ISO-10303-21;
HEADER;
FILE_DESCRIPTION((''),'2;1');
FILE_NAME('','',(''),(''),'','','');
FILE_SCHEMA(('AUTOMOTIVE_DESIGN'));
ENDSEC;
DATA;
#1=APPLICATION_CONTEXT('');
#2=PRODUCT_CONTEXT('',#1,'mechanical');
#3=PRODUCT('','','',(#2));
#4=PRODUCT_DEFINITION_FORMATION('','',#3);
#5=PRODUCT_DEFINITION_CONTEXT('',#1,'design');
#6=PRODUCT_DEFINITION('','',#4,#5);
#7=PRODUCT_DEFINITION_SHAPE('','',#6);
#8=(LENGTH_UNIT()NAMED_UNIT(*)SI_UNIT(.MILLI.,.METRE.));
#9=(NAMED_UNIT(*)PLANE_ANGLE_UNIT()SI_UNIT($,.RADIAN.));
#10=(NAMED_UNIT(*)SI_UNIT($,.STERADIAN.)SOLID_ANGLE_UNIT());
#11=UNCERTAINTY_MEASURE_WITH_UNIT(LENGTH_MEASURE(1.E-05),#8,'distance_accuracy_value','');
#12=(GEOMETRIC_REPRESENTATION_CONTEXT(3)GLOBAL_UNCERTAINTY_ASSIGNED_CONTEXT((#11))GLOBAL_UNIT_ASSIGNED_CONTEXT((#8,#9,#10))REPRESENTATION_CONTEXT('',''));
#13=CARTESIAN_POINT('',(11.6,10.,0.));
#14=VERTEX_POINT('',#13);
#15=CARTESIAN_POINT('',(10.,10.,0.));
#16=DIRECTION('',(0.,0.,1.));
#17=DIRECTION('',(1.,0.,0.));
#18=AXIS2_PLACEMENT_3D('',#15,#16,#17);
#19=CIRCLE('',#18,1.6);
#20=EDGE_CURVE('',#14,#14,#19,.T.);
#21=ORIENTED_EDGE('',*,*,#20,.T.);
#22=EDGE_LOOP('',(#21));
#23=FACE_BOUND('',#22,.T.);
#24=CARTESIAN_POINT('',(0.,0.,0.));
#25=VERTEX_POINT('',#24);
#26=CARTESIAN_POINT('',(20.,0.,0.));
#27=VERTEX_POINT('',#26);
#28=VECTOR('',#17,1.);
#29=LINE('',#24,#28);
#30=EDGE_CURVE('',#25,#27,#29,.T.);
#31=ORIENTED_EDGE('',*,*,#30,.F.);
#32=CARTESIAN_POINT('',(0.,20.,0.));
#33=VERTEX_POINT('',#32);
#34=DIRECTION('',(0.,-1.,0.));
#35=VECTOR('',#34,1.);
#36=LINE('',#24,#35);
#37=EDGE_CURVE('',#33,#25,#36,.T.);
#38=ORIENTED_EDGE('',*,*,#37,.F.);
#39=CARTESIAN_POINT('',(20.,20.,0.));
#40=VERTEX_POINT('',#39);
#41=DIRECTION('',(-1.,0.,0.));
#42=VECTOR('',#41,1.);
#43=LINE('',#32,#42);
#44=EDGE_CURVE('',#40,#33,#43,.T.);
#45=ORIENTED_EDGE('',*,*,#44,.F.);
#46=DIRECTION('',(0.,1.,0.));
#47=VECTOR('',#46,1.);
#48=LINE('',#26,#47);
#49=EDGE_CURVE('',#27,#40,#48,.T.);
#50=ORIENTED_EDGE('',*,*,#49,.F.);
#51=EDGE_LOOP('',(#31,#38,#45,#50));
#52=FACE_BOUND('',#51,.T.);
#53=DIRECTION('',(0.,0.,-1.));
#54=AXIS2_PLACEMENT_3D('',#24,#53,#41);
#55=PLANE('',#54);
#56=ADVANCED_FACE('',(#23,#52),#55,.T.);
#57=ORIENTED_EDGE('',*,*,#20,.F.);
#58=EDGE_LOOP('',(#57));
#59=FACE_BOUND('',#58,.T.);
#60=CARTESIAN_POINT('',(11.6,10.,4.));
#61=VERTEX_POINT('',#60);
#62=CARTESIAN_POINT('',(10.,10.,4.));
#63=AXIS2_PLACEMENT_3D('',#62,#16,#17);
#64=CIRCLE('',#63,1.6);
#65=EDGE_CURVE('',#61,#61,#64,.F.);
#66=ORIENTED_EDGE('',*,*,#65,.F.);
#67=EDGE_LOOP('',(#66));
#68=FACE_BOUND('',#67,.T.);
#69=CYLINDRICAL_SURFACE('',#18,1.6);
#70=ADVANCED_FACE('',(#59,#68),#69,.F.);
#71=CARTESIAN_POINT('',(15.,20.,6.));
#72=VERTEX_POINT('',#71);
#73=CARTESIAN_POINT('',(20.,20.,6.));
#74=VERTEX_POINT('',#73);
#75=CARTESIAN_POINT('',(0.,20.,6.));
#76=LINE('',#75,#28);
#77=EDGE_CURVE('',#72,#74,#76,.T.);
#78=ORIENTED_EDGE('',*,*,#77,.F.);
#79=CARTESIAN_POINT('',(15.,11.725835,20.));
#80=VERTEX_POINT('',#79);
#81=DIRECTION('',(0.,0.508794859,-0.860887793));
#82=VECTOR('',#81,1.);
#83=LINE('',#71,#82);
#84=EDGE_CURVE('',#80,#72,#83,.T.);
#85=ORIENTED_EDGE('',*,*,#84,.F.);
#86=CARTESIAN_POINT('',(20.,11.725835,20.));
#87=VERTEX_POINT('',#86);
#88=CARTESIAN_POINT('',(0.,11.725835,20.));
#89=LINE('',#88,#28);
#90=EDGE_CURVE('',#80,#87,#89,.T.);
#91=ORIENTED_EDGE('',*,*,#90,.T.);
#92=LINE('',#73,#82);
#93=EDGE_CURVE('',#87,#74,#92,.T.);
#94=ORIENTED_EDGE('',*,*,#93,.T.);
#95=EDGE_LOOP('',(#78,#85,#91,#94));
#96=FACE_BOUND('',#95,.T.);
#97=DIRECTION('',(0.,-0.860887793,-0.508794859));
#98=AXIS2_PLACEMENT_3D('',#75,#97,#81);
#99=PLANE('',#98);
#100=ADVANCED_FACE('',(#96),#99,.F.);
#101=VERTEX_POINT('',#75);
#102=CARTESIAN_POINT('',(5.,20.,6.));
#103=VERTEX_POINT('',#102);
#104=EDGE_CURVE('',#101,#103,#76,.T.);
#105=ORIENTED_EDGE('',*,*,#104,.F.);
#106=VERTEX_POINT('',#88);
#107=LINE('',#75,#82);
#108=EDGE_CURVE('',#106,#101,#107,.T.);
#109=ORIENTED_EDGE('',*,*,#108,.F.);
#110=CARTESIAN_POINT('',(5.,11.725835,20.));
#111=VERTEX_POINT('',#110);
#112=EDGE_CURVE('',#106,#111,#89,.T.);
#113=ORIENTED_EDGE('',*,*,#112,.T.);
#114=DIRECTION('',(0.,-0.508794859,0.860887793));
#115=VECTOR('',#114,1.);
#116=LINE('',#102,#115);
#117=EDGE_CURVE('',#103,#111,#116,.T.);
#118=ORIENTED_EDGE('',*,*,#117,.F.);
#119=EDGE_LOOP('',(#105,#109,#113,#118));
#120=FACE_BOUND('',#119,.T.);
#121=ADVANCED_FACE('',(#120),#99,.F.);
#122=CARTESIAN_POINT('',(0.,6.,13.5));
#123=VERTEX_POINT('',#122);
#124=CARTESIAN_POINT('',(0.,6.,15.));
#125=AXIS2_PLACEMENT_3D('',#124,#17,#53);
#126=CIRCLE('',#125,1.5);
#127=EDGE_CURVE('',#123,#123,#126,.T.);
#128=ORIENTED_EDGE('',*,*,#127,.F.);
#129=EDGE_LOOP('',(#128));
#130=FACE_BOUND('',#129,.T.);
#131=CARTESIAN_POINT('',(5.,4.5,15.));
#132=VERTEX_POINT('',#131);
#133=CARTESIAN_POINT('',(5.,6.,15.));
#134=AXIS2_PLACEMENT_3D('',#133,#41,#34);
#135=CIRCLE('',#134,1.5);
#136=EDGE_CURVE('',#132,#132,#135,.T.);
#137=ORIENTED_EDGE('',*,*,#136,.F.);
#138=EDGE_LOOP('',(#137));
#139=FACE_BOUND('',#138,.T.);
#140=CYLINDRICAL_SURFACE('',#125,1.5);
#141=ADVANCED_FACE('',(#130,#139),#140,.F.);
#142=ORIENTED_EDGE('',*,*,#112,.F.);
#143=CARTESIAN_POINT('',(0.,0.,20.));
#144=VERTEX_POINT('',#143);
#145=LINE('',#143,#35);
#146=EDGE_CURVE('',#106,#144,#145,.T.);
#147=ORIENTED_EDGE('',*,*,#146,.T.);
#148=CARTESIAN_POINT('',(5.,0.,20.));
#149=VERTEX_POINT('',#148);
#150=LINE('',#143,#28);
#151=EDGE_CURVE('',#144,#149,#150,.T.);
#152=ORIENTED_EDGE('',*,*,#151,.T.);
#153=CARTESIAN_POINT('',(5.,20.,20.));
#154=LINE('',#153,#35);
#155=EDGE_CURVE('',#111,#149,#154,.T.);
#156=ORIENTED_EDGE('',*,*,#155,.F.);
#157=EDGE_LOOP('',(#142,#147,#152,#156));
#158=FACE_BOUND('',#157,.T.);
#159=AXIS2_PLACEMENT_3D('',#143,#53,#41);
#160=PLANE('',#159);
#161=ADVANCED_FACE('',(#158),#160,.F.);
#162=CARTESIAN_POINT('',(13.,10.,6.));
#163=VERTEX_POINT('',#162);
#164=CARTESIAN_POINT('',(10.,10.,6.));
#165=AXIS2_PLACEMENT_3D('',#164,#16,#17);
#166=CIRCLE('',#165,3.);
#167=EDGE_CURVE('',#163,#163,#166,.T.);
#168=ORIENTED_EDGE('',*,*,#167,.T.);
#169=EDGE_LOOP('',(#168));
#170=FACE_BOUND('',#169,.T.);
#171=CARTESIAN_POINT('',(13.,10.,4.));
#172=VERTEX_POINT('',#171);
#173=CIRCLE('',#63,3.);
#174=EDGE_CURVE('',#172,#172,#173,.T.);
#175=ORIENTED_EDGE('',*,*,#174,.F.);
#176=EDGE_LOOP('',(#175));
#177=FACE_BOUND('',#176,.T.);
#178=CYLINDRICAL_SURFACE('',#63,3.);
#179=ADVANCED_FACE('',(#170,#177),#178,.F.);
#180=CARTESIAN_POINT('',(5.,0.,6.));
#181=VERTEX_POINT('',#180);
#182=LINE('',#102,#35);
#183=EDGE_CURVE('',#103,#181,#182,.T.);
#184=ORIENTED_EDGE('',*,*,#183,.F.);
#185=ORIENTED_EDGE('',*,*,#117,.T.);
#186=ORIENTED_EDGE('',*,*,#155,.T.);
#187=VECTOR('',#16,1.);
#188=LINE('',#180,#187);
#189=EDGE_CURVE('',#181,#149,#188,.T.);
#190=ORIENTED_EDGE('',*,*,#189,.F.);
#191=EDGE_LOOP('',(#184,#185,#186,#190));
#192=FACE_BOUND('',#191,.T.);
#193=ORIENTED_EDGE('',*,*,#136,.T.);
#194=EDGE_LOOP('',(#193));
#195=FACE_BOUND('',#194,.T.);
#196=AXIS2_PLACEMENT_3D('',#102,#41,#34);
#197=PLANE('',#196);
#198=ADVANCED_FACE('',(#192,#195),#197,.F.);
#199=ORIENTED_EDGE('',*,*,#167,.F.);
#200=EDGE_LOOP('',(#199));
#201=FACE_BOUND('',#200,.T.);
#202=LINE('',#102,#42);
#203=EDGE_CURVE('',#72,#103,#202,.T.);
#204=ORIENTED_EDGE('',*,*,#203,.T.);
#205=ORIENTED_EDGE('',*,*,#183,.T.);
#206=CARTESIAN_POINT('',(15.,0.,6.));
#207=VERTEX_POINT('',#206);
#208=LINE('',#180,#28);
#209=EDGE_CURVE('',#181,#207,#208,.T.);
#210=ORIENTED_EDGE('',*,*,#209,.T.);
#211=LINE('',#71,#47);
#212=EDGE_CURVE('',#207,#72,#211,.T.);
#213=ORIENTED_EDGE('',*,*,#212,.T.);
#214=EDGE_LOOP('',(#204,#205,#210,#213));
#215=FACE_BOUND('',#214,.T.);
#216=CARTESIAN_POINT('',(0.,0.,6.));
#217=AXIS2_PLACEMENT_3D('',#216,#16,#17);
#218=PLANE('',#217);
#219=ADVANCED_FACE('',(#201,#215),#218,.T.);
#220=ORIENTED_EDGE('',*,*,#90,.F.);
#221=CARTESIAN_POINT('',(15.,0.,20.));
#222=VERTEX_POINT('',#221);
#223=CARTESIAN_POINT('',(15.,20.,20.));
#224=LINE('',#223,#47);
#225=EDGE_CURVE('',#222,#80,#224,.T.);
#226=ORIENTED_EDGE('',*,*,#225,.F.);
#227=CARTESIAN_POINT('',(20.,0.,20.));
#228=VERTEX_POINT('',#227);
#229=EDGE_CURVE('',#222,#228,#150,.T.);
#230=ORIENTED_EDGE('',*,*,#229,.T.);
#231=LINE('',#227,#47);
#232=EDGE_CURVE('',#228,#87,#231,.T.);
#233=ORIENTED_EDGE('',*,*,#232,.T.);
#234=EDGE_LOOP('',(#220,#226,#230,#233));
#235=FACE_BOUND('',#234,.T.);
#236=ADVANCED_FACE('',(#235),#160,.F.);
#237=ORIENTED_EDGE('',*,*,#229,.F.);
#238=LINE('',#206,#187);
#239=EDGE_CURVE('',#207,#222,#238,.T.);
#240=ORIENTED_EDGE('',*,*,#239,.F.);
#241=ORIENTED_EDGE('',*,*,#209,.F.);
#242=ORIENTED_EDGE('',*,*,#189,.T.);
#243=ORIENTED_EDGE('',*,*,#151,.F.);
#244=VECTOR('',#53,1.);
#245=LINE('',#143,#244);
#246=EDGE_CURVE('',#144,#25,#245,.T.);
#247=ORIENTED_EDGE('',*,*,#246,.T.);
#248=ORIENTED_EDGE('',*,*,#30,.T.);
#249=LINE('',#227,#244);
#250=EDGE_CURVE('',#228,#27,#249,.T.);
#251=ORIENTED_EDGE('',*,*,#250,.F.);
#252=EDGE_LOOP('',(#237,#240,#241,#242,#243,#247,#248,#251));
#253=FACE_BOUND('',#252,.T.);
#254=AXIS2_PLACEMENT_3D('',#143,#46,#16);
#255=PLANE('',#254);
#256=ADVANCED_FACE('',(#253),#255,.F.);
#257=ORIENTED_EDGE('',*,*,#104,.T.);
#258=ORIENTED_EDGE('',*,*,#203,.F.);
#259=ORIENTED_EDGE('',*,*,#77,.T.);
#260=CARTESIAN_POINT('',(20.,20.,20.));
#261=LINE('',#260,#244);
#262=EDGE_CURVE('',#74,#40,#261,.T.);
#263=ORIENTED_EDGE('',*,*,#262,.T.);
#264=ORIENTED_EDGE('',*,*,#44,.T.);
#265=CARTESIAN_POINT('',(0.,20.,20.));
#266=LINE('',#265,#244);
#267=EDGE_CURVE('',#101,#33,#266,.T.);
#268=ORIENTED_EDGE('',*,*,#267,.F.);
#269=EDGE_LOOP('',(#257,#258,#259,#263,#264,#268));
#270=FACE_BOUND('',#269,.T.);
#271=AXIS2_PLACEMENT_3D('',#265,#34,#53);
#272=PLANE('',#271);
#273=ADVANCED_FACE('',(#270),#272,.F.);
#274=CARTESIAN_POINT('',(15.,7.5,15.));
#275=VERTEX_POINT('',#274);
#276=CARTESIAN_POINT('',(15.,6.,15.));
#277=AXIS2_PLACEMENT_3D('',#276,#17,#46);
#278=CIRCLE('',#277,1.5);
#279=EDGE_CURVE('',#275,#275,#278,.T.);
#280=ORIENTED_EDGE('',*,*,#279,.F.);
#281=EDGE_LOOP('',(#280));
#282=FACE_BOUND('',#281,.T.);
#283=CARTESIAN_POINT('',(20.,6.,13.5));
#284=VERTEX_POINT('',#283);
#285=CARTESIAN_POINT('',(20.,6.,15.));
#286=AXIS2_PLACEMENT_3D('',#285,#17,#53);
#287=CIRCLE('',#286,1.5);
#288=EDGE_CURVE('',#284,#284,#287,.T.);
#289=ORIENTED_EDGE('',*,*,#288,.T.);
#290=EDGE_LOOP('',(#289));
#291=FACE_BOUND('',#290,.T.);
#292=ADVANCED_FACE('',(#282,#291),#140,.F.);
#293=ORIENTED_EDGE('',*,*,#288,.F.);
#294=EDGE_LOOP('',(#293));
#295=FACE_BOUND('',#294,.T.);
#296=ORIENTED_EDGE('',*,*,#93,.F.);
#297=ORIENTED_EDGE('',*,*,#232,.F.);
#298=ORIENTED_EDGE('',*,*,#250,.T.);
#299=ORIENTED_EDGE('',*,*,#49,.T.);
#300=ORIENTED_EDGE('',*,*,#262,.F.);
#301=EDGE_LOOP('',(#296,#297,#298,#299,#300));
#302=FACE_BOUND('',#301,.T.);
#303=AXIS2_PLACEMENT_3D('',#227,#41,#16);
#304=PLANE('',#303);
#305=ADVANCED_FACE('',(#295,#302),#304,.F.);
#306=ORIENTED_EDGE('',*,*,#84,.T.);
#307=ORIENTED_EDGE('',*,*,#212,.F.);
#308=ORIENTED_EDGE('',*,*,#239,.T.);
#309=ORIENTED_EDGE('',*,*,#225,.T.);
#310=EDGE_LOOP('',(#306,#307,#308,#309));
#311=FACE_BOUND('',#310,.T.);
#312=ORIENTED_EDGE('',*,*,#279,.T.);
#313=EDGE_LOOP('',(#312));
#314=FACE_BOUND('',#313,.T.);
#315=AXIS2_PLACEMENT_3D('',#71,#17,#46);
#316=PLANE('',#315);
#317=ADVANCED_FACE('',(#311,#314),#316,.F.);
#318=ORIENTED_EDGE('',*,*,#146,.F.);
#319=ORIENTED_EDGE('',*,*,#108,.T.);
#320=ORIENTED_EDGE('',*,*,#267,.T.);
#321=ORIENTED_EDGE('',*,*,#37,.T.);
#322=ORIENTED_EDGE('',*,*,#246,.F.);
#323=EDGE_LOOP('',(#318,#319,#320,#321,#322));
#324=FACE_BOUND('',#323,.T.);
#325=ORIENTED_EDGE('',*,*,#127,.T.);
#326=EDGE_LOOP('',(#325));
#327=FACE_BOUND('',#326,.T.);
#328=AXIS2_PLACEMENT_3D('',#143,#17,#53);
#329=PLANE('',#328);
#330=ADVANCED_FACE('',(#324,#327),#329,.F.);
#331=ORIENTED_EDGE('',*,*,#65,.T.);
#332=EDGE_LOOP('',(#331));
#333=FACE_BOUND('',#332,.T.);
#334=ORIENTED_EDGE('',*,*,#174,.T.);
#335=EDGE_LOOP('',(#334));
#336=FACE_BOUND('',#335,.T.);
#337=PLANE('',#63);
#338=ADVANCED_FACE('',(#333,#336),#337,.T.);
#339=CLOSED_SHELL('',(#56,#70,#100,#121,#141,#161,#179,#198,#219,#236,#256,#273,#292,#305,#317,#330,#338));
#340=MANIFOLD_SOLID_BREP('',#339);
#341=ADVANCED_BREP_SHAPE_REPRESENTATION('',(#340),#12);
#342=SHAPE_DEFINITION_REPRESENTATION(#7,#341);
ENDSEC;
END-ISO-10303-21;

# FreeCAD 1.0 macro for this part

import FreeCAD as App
import Part
import Sketcher

doc = App.newDocument("Part")
body = doc.addObject("PartDesign::Body", "Body")

# Sketch on XY plane
sketch1 = body.newObject("Sketcher::SketchObject", "Sketch")
sketch1.AttachmentSupport = (doc.getObject("XY_Plane"), [""])
sketch1.MapMode = "FlatFace"
sketch1.addGeometry(Part.LineSegment(App.Vector(0, 20, 0), App.Vector(0, 0, 0)), False)
sketch1.addGeometry(Part.LineSegment(App.Vector(0, 0, 0), App.Vector(20, 0, 0)), False)
sketch1.addGeometry(Part.LineSegment(App.Vector(20, 0, 0), App.Vector(20, 20, 0)), False)
sketch1.addGeometry(Part.LineSegment(App.Vector(20, 20, 0), App.Vector(0, 20, 0)), False)
sketch1.addConstraint(Sketcher.Constraint("Coincident", 0, 2, 1, 1))
sketch1.addConstraint(Sketcher.Constraint("Coincident", 1, 2, 2, 1))
sketch1.addConstraint(Sketcher.Constraint("Coincident", 2, 2, 3, 1))
sketch1.addConstraint(Sketcher.Constraint("Coincident", 3, 2, 0, 1))
sketch1.addConstraint(Sketcher.Constraint("Vertical", 0))
sketch1.addConstraint(Sketcher.Constraint("Horizontal", 1))
sketch1.addConstraint(Sketcher.Constraint("Vertical", 2))
sketch1.addConstraint(Sketcher.Constraint("Horizontal", 3))
sketch1.addConstraint(Sketcher.Constraint("Coincident", 0, 2, -1, 1))
sketch1.addConstraint(Sketcher.Constraint("Equal", 3, 0))
sketch1.addConstraint(Sketcher.Constraint("DistanceX", 1, 1, 1, 2, 20.0))
pad1 = body.newObject("PartDesign::Pad", "Pad")
pad1.Profile = sketch1
pad1.Length = 20

# Sketch on XY plane
sketch2 = body.newObject("Sketcher::SketchObject", "Sketch001")
sketch2.AttachmentSupport = (doc.getObject("XY_Plane"), [""])
sketch2.MapMode = "FlatFace"
sketch2.AttachmentOffset = App.Placement(App.Vector(0, 0, 20), App.Rotation())
sketch2.addGeometry(Part.LineSegment(App.Vector(5, 20, 0), App.Vector(5, 0, 0)), False)
sketch2.addGeometry(Part.LineSegment(App.Vector(5, 0, 0), App.Vector(15, 0, 0)), False)
sketch2.addGeometry(Part.LineSegment(App.Vector(15, 0, 0), App.Vector(15, 20, 0)), False)
sketch2.addGeometry(Part.LineSegment(App.Vector(15, 20, 0), App.Vector(5, 20, 0)), False)
sketch2.addConstraint(Sketcher.Constraint("Coincident", 0, 2, 1, 1))
sketch2.addConstraint(Sketcher.Constraint("Coincident", 1, 2, 2, 1))
sketch2.addConstraint(Sketcher.Constraint("Coincident", 2, 2, 3, 1))
sketch2.addConstraint(Sketcher.Constraint("Coincident", 3, 2, 0, 1))
sketch2.addConstraint(Sketcher.Constraint("Vertical", 0))
sketch2.addConstraint(Sketcher.Constraint("Horizontal", 1))
sketch2.addConstraint(Sketcher.Constraint("Vertical", 2))
sketch2.addConstraint(Sketcher.Constraint("Horizontal", 3))
sketch2.addConstraint(Sketcher.Constraint("PointOnObject", 0, 2, -1))
sketch2.addConstraint(Sketcher.Constraint("DistanceX", 1, 1, 1, 2, 10.0))
sketch2.addConstraint(Sketcher.Constraint("DistanceY", 0, 2, 0, 1, 20.0))
sketch2.addConstraint(Sketcher.Constraint("DistanceX", -1, 1, 0, 2, 5.0))
pocket1 = body.newObject("PartDesign::Pocket", "Pocket")
pocket1.Profile = sketch2
pocket1.Length = 14

# Sketch on XY plane
sketch3 = body.newObject("Sketcher::SketchObject", "Sketch002")
sketch3.AttachmentSupport = (doc.getObject("XY_Plane"), [""])
sketch3.MapMode = "FlatFace"
sketch3.AttachmentOffset = App.Placement(App.Vector(0, 0, 6), App.Rotation())
sketch3.addGeometry(Part.Circle(App.Vector(10, 10, 0), App.Vector(0, 0, 1), 1.6), False)
sketch3.addConstraint(Sketcher.Constraint("Diameter", 0, 3.2))
sketch3.addConstraint(Sketcher.Constraint("DistanceX", -1, 1, 0, 3, 10.0))
sketch3.addConstraint(Sketcher.Constraint("DistanceY", -1, 1, 0, 3, 10.0))
pocket2 = body.newObject("PartDesign::Pocket", "Pocket001")
pocket2.Profile = sketch3
pocket2.Type = "ThroughAll"

# Sketch on XY plane
sketch4 = body.newObject("Sketcher::SketchObject", "Sketch003")
sketch4.AttachmentSupport = (doc.getObject("XY_Plane"), [""])
sketch4.MapMode = "FlatFace"
sketch4.AttachmentOffset = App.Placement(App.Vector(0, 0, 6), App.Rotation())
sketch4.addGeometry(Part.Circle(App.Vector(10, 10, 0), App.Vector(0, 0, 1), 3), False)
sketch4.addConstraint(Sketcher.Constraint("Diameter", 0, 6.0))
sketch4.addConstraint(Sketcher.Constraint("DistanceX", -1, 1, 0, 3, 10.0))
sketch4.addConstraint(Sketcher.Constraint("DistanceY", -1, 1, 0, 3, 10.0))
pocket3 = body.newObject("PartDesign::Pocket", "Pocket002")
pocket3.Profile = sketch4
pocket3.Length = 2

# Sketch on YZ plane
sketch5 = body.newObject("Sketcher::SketchObject", "Sketch004")
sketch5.AttachmentSupport = (doc.getObject("YZ_Plane"), [""])
sketch5.MapMode = "FlatFace"
sketch5.AttachmentOffset = App.Placement(App.Vector(0, 0, 20), App.Rotation())
sketch5.addGeometry(Part.Circle(App.Vector(6, 15, 0), App.Vector(0, 0, 1), 1.5), False)
sketch5.addGeometry(Part.LineSegment(App.Vector(20, 6, 0), App.Vector(20, 20, 0)), False)
sketch5.addGeometry(Part.LineSegment(App.Vector(20, 20, 0), App.Vector(11.7, 20, 0)), False)
sketch5.addGeometry(Part.LineSegment(App.Vector(11.7, 20, 0), App.Vector(20, 6, 0)), False)
sketch5.addConstraint(Sketcher.Constraint("Coincident", 1, 2, 2, 1))
sketch5.addConstraint(Sketcher.Constraint("Coincident", 2, 2, 3, 1))
sketch5.addConstraint(Sketcher.Constraint("Coincident", 3, 2, 1, 1))
sketch5.addConstraint(Sketcher.Constraint("Vertical", 1))
sketch5.addConstraint(Sketcher.Constraint("Horizontal", 2))
sketch5.addConstraint(Sketcher.Constraint("Diameter", 0, 3.0))
sketch5.addConstraint(Sketcher.Constraint("DistanceY", 1, 1, 1, 2, 14.0))
sketch5.addConstraint(Sketcher.Constraint("DistanceX", -1, 1, 0, 3, 6.0))
sketch5.addConstraint(Sketcher.Constraint("DistanceY", -1, 1, 0, 3, 15.0))
sketch5.addConstraint(Sketcher.Constraint("DistanceX", -1, 1, 1, 2, 20.0))
sketch5.addConstraint(Sketcher.Constraint("DistanceY", -1, 1, 1, 2, 20.0))
sketch5.addConstraint(Sketcher.Constraint("Distance", 3, 16.262282))
pocket4 = body.newObject("PartDesign::Pocket", "Pocket003")
pocket4.Profile = sketch5
pocket4.Type = "ThroughAll"

doc.recompute()
